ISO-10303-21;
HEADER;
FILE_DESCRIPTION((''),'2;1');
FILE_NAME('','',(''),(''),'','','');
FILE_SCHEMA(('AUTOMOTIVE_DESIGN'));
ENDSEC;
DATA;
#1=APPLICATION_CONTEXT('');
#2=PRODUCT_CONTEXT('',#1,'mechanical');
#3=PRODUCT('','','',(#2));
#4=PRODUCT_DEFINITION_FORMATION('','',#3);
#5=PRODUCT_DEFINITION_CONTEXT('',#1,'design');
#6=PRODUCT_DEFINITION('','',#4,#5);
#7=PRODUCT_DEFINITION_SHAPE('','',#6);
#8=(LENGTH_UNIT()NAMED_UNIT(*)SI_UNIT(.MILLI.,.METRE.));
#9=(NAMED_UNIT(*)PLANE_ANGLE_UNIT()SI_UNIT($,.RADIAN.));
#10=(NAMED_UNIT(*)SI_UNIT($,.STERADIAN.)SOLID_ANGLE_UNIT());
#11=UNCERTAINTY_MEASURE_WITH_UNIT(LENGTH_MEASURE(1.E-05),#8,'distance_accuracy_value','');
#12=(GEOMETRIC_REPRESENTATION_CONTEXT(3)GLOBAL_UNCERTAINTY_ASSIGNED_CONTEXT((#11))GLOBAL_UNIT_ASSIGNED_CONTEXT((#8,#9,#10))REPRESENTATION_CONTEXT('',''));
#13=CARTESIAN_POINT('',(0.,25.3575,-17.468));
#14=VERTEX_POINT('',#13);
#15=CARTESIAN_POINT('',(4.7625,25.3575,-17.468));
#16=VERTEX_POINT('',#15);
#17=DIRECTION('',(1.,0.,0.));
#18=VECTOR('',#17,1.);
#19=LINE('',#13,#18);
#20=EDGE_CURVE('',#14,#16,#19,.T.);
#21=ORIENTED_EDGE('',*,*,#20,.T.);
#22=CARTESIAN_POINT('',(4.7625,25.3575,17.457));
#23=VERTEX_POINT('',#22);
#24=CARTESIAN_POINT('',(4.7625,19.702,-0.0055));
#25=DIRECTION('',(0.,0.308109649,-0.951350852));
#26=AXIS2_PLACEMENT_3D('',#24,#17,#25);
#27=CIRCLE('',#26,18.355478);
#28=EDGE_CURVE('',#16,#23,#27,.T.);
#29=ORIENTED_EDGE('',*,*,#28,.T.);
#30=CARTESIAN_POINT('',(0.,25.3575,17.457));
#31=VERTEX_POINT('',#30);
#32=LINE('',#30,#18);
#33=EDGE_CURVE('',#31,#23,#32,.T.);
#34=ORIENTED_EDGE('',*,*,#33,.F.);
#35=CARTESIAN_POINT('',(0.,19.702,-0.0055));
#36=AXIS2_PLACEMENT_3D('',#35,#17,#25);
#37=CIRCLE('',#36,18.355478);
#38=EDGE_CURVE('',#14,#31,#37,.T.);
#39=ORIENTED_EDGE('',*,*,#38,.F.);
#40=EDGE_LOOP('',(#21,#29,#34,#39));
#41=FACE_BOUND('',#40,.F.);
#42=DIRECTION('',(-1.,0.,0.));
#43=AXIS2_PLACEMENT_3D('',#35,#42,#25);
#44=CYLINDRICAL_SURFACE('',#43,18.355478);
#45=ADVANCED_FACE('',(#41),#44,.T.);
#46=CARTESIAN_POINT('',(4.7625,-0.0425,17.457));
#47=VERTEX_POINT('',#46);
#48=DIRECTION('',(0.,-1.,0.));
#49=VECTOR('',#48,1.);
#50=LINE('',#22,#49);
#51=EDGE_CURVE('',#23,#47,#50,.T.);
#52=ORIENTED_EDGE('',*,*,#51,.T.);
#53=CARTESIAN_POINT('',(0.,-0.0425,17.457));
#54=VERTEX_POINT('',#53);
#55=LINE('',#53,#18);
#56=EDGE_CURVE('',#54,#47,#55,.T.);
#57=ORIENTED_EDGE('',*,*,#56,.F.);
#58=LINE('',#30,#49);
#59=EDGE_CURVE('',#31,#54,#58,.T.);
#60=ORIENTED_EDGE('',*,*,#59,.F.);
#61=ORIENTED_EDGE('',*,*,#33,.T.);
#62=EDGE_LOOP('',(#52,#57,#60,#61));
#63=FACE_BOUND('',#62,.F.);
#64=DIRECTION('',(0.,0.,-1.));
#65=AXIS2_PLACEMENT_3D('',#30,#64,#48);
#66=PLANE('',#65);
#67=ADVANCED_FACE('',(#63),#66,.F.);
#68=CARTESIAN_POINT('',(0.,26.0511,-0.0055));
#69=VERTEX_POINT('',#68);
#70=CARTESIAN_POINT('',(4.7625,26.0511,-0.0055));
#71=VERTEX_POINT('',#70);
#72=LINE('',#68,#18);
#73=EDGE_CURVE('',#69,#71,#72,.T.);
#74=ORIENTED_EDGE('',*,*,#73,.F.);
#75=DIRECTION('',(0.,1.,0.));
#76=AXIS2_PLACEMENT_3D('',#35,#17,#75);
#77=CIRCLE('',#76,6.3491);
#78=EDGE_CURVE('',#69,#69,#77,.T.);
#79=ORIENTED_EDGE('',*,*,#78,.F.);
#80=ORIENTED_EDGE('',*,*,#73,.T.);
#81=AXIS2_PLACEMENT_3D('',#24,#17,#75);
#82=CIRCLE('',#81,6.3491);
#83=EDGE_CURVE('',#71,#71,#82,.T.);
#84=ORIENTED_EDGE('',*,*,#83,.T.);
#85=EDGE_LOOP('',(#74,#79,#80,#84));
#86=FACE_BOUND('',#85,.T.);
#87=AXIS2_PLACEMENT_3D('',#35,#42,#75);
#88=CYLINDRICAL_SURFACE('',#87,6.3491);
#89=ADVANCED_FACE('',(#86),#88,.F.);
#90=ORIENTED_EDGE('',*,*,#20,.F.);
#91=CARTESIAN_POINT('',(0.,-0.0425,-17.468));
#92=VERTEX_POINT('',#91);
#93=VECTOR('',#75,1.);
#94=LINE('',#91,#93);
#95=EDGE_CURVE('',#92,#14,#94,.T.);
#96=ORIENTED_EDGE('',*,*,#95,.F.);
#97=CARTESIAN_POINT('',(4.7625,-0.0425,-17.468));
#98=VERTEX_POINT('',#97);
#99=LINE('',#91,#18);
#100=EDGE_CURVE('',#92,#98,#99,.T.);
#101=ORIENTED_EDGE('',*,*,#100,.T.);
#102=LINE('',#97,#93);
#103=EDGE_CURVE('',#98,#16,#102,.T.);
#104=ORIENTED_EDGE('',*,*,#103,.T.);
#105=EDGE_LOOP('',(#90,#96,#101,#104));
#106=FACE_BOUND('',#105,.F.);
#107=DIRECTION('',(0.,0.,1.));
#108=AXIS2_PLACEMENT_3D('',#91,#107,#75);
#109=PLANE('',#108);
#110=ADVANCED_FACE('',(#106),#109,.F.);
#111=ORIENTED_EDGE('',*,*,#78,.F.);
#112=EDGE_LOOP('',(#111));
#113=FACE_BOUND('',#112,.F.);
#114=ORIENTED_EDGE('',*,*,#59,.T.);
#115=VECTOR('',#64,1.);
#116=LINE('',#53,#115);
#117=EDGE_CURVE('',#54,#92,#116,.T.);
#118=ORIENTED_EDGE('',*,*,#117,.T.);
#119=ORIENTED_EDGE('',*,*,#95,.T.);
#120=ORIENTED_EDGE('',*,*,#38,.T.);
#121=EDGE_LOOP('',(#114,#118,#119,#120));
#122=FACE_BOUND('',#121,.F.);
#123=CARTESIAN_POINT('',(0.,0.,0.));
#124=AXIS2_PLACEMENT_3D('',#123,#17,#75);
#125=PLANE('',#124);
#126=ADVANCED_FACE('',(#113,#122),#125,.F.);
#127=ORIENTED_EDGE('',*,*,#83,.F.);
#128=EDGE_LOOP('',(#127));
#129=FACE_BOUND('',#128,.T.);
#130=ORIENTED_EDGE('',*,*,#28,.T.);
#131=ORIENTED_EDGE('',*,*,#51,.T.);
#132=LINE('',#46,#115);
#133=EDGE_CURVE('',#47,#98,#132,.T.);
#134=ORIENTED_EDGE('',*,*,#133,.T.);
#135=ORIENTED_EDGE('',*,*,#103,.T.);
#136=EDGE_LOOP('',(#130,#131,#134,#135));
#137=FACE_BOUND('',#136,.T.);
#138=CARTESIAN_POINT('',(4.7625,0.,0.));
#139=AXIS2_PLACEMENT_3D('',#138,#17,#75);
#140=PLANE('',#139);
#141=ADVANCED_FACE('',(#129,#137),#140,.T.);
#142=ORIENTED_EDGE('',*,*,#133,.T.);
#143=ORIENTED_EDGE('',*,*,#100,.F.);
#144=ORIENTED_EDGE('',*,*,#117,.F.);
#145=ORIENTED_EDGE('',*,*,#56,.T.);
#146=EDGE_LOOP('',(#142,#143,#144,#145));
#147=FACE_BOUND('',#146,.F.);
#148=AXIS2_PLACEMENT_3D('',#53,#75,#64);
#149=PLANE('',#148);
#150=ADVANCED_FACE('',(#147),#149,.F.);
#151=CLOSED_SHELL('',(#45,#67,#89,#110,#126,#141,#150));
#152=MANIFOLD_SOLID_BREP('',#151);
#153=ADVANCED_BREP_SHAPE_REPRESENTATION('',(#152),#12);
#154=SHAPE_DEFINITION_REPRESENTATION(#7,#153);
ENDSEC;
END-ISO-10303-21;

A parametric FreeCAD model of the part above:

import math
import FreeCAD as App
import Part
import Sketcher
Q = App.Units.Quantity

doc = App.newDocument("Part")
body = doc.addObject("PartDesign::Body", "Body")

# Sketch on YZ plane
sketch1 = body.newObject("Sketcher::SketchObject", "Sketch")
sketch1.AttachmentSupport = (doc.getObject("YZ_Plane"), [""])
sketch1.MapMode = "FlatFace"
sketch1.addGeometry(Part.ArcOfCircle(Part.Circle(App.Vector(20, 0, 0), App.Vector(0, 0, 1), 18), math.radians(-72), math.radians(72)), False)
sketch1.addGeometry(Part.LineSegment(App.Vector(25, 17, 0), App.Vector(0, 17, 0)), False)
sketch1.addGeometry(Part.LineSegment(App.Vector(0, 17, 0), App.Vector(0, -17, 0)), False)
sketch1.addGeometry(Part.LineSegment(App.Vector(0, -17, 0), App.Vector(25, -17, 0)), False)
sketch1.addGeometry(Part.Circle(App.Vector(20, 0, 0), App.Vector(0, 0, 1), 6), False)
sketch1.addConstraint(Sketcher.Constraint("Coincident", 0, 2, 1, 1))
sketch1.addConstraint(Sketcher.Constraint("Coincident", 1, 2, 2, 1))
sketch1.addConstraint(Sketcher.Constraint("Coincident", 2, 2, 3, 1))
sketch1.addConstraint(Sketcher.Constraint("Coincident", 3, 2, 0, 1))
sketch1.addConstraint(Sketcher.Constraint("Horizontal", 1))
sketch1.addConstraint(Sketcher.Constraint("Vertical", 2))
sketch1.addConstraint(Sketcher.Constraint("Horizontal", 3))
sketch1.addConstraint(Sketcher.Constraint("Coincident", 4, 3, 0, 3))
sketch1.addConstraint(Sketcher.Constraint("Vertical", 0, 2, 3, 2))
sketch1.addConstraint(Sketcher.Constraint("DistanceX", 1, 2, 1, 1, Q("1 in")))
sketch1.addConstraint(Sketcher.Constraint("DistanceY", 2, 2, 2, 1, Q("1.375 in")))
sketch1.addConstraint(Sketcher.Constraint("Diameter", 4, Q("12.6982 mm")))
sketch1.addConstraint(Sketcher.Constraint("Radius", 0, Q("18.3555 mm")))
sketch1.addConstraint(Sketcher.Constraint("DistanceX", -1, 1, 0, 3, Q("19.702 mm")))
sketch1.addConstraint(Sketcher.Constraint("DistanceY", 0, 3, -1, 1, Q("0.0055 mm")))
pad1 = body.newObject("PartDesign::Pad", "Pad")
pad1.Profile = sketch1
pad1.Length = Q("0.1875 in")

doc.recompute()
